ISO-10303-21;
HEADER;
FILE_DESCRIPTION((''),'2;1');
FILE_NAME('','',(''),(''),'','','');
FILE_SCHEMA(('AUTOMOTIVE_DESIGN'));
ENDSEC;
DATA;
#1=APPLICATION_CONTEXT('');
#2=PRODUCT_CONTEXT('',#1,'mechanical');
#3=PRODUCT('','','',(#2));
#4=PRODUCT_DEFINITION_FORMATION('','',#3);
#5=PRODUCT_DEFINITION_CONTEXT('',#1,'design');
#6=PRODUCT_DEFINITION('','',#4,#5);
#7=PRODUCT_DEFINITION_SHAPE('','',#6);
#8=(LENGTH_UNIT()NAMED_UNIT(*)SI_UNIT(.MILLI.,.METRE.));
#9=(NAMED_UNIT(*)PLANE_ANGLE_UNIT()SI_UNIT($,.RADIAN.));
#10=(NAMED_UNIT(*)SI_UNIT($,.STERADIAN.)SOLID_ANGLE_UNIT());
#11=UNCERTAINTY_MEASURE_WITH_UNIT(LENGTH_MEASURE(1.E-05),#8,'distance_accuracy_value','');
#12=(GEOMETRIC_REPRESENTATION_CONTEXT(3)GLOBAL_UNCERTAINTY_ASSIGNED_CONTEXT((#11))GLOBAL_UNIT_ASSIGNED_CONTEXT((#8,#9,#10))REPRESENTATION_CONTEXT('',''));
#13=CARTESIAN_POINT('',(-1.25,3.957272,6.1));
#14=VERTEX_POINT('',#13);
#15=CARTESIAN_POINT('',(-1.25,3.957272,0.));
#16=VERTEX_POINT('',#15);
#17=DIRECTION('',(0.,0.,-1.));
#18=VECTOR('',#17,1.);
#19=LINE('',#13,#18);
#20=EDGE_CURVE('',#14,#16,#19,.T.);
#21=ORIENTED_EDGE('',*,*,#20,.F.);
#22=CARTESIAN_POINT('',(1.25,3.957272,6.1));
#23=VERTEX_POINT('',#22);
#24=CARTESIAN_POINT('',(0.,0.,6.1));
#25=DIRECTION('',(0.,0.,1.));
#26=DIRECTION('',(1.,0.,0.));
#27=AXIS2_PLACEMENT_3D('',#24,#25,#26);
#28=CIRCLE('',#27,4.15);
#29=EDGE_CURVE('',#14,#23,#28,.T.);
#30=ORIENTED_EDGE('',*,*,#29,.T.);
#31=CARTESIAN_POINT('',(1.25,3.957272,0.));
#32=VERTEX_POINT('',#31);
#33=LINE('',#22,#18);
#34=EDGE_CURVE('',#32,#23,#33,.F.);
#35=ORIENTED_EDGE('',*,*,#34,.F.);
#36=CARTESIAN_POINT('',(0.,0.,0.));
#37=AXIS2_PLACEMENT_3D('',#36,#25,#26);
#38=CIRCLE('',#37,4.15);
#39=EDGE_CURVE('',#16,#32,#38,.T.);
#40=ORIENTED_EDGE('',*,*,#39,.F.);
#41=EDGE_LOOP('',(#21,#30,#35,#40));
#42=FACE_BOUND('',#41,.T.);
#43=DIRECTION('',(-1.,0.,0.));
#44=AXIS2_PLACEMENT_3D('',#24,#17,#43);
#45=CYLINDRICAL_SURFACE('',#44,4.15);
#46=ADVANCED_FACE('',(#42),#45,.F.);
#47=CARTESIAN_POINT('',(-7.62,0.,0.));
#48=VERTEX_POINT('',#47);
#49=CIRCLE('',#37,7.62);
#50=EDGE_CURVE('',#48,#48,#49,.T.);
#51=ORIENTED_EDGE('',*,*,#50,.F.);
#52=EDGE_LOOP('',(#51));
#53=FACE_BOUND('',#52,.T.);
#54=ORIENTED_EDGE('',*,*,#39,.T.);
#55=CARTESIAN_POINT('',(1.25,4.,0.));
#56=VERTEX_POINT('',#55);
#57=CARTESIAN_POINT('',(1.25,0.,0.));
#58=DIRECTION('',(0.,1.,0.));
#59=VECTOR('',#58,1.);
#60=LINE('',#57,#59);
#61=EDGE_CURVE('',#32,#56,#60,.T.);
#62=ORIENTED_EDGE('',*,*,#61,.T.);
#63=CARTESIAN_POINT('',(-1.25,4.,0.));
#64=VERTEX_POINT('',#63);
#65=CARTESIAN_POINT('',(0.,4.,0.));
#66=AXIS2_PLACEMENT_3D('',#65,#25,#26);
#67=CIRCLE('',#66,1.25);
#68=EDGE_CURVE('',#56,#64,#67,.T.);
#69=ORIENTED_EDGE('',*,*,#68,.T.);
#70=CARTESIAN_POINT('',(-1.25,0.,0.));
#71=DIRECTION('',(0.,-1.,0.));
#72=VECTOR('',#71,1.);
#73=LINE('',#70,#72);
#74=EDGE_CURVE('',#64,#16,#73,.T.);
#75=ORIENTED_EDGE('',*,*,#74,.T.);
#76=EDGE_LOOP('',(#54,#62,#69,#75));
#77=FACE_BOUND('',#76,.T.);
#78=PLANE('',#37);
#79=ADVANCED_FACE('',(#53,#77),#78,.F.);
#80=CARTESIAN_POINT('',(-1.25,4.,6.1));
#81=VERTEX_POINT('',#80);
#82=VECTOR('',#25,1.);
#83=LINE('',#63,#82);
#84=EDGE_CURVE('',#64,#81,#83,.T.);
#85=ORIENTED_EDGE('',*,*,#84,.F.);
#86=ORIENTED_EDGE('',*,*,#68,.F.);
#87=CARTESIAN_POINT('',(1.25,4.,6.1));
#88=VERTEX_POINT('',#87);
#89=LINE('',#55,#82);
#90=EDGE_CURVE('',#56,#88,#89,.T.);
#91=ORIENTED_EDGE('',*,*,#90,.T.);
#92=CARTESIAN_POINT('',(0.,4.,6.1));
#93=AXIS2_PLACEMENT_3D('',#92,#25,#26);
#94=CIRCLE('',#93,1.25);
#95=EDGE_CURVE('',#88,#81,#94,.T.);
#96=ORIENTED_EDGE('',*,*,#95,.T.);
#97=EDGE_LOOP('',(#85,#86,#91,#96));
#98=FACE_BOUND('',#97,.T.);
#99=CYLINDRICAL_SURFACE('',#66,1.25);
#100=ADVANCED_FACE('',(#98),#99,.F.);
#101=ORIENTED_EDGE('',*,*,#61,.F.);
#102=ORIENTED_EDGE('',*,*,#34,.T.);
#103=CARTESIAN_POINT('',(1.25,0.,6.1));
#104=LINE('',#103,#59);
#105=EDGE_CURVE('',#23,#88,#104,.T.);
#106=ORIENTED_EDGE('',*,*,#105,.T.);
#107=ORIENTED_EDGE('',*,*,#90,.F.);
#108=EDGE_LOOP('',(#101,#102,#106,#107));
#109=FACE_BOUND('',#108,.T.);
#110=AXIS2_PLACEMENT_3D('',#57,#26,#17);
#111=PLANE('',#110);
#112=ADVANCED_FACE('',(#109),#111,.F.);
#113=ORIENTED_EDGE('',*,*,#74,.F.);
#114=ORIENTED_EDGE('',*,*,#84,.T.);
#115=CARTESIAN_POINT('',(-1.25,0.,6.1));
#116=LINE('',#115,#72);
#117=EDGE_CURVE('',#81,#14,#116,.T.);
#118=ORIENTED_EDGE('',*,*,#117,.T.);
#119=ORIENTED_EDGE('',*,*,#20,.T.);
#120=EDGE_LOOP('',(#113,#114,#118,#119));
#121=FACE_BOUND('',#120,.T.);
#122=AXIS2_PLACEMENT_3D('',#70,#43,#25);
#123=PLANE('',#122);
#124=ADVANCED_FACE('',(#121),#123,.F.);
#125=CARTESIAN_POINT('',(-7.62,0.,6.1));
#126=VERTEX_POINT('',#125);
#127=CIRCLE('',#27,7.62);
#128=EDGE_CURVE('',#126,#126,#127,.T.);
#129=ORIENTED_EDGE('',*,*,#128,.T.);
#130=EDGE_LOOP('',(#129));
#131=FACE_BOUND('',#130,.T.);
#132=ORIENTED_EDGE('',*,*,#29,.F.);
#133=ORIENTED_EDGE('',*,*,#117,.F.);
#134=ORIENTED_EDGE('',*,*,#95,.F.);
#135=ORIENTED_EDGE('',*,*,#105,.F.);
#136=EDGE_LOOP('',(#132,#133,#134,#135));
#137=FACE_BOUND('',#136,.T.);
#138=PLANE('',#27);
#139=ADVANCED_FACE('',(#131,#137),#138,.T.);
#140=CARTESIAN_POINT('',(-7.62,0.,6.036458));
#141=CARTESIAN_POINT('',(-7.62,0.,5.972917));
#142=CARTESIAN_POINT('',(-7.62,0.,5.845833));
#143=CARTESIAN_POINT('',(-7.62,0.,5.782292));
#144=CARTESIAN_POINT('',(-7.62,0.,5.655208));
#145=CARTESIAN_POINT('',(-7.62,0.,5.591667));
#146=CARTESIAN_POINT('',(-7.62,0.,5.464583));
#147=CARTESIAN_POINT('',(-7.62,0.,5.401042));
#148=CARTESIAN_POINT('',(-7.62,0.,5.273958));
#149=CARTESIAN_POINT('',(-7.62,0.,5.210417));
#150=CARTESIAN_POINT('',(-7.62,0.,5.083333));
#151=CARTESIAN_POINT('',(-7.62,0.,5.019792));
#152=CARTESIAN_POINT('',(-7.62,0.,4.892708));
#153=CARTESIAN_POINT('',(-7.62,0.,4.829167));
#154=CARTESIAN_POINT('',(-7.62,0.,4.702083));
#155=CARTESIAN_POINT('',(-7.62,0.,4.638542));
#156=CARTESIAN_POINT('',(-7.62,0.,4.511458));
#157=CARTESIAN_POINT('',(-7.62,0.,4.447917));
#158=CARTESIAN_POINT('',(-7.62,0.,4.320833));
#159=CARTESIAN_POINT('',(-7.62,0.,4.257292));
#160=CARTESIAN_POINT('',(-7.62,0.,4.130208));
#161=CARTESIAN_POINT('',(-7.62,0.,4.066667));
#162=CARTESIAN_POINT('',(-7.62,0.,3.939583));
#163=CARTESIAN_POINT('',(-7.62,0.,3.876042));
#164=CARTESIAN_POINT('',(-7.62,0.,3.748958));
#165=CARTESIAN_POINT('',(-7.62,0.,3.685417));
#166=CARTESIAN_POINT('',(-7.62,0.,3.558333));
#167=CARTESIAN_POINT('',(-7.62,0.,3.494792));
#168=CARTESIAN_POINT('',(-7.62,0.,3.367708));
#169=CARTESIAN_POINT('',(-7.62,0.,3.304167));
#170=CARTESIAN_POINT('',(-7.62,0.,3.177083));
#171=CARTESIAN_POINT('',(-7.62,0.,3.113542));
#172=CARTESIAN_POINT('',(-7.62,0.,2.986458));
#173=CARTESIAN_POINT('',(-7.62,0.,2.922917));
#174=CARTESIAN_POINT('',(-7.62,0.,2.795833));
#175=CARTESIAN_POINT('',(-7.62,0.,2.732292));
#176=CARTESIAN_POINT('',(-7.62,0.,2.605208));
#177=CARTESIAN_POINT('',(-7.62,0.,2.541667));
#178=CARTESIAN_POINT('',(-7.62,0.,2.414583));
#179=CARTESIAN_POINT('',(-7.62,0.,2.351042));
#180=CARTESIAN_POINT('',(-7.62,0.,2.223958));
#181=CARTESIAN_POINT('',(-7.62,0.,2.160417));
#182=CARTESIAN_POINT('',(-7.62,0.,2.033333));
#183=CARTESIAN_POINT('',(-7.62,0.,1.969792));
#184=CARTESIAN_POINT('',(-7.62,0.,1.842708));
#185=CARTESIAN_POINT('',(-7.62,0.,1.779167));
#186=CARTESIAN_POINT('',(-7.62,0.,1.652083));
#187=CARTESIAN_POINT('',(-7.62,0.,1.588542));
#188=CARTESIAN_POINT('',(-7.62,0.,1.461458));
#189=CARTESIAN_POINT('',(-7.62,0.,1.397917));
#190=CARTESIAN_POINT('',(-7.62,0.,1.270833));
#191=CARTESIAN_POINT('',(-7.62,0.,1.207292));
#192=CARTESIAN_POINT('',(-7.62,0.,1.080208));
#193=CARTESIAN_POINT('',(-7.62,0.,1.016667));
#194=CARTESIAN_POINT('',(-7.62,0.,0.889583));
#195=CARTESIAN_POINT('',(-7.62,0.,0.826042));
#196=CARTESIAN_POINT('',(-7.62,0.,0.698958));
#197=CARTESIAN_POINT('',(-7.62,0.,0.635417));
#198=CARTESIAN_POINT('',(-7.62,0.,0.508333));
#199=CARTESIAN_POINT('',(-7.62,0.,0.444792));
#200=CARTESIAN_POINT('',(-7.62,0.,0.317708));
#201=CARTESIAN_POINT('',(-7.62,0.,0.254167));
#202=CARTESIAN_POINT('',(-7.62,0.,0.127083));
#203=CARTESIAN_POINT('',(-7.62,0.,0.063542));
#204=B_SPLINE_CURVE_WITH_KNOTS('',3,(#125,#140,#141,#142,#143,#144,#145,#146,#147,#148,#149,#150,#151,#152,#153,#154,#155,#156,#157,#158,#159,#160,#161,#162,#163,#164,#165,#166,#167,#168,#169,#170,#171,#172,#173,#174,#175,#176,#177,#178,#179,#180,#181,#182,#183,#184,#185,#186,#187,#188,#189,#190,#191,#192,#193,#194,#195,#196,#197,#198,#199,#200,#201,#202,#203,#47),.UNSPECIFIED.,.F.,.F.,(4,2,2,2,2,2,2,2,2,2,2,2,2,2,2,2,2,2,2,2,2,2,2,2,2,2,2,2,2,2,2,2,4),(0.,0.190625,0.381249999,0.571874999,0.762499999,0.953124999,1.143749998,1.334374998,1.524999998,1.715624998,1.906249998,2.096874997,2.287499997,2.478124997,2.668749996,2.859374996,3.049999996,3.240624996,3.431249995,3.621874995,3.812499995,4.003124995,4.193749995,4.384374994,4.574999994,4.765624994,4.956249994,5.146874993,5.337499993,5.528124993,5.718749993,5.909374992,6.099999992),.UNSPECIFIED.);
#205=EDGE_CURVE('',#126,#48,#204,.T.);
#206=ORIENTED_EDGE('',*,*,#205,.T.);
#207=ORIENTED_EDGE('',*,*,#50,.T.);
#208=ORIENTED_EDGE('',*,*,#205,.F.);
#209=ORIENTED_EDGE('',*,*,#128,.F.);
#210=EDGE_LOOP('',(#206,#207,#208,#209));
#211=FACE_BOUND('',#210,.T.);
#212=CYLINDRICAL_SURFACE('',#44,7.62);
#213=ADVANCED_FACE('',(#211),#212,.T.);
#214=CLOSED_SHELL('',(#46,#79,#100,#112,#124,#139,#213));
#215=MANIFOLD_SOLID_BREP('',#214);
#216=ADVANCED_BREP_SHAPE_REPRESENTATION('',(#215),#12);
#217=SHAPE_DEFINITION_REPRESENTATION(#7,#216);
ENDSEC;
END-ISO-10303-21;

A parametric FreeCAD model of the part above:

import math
import FreeCAD as App
import Part
import Sketcher

doc = App.newDocument("Part")
body = doc.addObject("PartDesign::Body", "Body")

# Sketch on XY plane
sketch1 = doc.addObject("Sketcher::SketchObject", "Sketch")
body.addObject(sketch1)
sketch1.AttachmentSupport = (doc.XY_Plane, [""])
sketch1.MapMode = "FlatFace"
sketch1.addGeometry([
    Part.Circle(App.Vector(0, 0, 0), App.Vector(0, 0, 1), 7.6),
    Part.Circle(App.Vector(0, 0, 0), App.Vector(0, 0, 1), 4.2),
], False)
sketch1.addConstraint([
    Sketcher.Constraint("Coincident", 0, 3, -1, 1),
    Sketcher.Constraint("Coincident", 1, 3, -1, 1),
    Sketcher.Constraint("Diameter", 1, 8.3),
    Sketcher.Constraint("Diameter", 0, 15.24),
])
pad1 = doc.addObject("PartDesign::Pad", "Pad")
body.addObject(pad1)
pad1.Profile = sketch1
pad1.Length = 6.1

# Sketch on XY plane
sketch2 = doc.addObject("Sketcher::SketchObject", "Sketch001")
body.addObject(sketch2)
sketch2.AttachmentSupport = (doc.XY_Plane, [""])
sketch2.MapMode = "FlatFace"
sketch2.AttachmentOffset = App.Placement(App.Vector(0, 0, 6.1), App.Rotation())
sketch2.addGeometry([
    Part.LineSegment(App.Vector(-1.2, 4, 0), App.Vector(-1.2, 0, 0)),
    Part.ArcOfCircle(Part.Circle(App.Vector(0, 0, 0), App.Vector(0, 0, 1), 1.2), math.radians(180), math.radians(360)),
    Part.LineSegment(App.Vector(1.2, 0, 0), App.Vector(1.2, 4, 0)),
    Part.ArcOfCircle(Part.Circle(App.Vector(0, 4, 0), App.Vector(0, 0, 1), 1.2), math.radians(0), math.radians(180)),
], False)
sketch2.addConstraint([
    Sketcher.Constraint("Tangent", 0, 2, 1, 1),
    Sketcher.Constraint("Tangent", 1, 2, 2, 1),
    Sketcher.Constraint("Tangent", 2, 2, 3, 1),
    Sketcher.Constraint("Tangent", 3, 2, 0, 1),
    Sketcher.Constraint("Vertical", 0),
    Sketcher.Constraint("Vertical", 2),
    Sketcher.Constraint("Coincident", 1, 3, -1, 1),
    Sketcher.Constraint("DistanceY", 0, 2, 0, 1, 4.0),
    Sketcher.Constraint("Radius", 1, 1.25),
])
pocket1 = doc.addObject("PartDesign::Pocket", "Pocket")
body.addObject(pocket1)
pocket1.Profile = sketch2
pocket1.Type = "ThroughAll"

doc.recompute()
